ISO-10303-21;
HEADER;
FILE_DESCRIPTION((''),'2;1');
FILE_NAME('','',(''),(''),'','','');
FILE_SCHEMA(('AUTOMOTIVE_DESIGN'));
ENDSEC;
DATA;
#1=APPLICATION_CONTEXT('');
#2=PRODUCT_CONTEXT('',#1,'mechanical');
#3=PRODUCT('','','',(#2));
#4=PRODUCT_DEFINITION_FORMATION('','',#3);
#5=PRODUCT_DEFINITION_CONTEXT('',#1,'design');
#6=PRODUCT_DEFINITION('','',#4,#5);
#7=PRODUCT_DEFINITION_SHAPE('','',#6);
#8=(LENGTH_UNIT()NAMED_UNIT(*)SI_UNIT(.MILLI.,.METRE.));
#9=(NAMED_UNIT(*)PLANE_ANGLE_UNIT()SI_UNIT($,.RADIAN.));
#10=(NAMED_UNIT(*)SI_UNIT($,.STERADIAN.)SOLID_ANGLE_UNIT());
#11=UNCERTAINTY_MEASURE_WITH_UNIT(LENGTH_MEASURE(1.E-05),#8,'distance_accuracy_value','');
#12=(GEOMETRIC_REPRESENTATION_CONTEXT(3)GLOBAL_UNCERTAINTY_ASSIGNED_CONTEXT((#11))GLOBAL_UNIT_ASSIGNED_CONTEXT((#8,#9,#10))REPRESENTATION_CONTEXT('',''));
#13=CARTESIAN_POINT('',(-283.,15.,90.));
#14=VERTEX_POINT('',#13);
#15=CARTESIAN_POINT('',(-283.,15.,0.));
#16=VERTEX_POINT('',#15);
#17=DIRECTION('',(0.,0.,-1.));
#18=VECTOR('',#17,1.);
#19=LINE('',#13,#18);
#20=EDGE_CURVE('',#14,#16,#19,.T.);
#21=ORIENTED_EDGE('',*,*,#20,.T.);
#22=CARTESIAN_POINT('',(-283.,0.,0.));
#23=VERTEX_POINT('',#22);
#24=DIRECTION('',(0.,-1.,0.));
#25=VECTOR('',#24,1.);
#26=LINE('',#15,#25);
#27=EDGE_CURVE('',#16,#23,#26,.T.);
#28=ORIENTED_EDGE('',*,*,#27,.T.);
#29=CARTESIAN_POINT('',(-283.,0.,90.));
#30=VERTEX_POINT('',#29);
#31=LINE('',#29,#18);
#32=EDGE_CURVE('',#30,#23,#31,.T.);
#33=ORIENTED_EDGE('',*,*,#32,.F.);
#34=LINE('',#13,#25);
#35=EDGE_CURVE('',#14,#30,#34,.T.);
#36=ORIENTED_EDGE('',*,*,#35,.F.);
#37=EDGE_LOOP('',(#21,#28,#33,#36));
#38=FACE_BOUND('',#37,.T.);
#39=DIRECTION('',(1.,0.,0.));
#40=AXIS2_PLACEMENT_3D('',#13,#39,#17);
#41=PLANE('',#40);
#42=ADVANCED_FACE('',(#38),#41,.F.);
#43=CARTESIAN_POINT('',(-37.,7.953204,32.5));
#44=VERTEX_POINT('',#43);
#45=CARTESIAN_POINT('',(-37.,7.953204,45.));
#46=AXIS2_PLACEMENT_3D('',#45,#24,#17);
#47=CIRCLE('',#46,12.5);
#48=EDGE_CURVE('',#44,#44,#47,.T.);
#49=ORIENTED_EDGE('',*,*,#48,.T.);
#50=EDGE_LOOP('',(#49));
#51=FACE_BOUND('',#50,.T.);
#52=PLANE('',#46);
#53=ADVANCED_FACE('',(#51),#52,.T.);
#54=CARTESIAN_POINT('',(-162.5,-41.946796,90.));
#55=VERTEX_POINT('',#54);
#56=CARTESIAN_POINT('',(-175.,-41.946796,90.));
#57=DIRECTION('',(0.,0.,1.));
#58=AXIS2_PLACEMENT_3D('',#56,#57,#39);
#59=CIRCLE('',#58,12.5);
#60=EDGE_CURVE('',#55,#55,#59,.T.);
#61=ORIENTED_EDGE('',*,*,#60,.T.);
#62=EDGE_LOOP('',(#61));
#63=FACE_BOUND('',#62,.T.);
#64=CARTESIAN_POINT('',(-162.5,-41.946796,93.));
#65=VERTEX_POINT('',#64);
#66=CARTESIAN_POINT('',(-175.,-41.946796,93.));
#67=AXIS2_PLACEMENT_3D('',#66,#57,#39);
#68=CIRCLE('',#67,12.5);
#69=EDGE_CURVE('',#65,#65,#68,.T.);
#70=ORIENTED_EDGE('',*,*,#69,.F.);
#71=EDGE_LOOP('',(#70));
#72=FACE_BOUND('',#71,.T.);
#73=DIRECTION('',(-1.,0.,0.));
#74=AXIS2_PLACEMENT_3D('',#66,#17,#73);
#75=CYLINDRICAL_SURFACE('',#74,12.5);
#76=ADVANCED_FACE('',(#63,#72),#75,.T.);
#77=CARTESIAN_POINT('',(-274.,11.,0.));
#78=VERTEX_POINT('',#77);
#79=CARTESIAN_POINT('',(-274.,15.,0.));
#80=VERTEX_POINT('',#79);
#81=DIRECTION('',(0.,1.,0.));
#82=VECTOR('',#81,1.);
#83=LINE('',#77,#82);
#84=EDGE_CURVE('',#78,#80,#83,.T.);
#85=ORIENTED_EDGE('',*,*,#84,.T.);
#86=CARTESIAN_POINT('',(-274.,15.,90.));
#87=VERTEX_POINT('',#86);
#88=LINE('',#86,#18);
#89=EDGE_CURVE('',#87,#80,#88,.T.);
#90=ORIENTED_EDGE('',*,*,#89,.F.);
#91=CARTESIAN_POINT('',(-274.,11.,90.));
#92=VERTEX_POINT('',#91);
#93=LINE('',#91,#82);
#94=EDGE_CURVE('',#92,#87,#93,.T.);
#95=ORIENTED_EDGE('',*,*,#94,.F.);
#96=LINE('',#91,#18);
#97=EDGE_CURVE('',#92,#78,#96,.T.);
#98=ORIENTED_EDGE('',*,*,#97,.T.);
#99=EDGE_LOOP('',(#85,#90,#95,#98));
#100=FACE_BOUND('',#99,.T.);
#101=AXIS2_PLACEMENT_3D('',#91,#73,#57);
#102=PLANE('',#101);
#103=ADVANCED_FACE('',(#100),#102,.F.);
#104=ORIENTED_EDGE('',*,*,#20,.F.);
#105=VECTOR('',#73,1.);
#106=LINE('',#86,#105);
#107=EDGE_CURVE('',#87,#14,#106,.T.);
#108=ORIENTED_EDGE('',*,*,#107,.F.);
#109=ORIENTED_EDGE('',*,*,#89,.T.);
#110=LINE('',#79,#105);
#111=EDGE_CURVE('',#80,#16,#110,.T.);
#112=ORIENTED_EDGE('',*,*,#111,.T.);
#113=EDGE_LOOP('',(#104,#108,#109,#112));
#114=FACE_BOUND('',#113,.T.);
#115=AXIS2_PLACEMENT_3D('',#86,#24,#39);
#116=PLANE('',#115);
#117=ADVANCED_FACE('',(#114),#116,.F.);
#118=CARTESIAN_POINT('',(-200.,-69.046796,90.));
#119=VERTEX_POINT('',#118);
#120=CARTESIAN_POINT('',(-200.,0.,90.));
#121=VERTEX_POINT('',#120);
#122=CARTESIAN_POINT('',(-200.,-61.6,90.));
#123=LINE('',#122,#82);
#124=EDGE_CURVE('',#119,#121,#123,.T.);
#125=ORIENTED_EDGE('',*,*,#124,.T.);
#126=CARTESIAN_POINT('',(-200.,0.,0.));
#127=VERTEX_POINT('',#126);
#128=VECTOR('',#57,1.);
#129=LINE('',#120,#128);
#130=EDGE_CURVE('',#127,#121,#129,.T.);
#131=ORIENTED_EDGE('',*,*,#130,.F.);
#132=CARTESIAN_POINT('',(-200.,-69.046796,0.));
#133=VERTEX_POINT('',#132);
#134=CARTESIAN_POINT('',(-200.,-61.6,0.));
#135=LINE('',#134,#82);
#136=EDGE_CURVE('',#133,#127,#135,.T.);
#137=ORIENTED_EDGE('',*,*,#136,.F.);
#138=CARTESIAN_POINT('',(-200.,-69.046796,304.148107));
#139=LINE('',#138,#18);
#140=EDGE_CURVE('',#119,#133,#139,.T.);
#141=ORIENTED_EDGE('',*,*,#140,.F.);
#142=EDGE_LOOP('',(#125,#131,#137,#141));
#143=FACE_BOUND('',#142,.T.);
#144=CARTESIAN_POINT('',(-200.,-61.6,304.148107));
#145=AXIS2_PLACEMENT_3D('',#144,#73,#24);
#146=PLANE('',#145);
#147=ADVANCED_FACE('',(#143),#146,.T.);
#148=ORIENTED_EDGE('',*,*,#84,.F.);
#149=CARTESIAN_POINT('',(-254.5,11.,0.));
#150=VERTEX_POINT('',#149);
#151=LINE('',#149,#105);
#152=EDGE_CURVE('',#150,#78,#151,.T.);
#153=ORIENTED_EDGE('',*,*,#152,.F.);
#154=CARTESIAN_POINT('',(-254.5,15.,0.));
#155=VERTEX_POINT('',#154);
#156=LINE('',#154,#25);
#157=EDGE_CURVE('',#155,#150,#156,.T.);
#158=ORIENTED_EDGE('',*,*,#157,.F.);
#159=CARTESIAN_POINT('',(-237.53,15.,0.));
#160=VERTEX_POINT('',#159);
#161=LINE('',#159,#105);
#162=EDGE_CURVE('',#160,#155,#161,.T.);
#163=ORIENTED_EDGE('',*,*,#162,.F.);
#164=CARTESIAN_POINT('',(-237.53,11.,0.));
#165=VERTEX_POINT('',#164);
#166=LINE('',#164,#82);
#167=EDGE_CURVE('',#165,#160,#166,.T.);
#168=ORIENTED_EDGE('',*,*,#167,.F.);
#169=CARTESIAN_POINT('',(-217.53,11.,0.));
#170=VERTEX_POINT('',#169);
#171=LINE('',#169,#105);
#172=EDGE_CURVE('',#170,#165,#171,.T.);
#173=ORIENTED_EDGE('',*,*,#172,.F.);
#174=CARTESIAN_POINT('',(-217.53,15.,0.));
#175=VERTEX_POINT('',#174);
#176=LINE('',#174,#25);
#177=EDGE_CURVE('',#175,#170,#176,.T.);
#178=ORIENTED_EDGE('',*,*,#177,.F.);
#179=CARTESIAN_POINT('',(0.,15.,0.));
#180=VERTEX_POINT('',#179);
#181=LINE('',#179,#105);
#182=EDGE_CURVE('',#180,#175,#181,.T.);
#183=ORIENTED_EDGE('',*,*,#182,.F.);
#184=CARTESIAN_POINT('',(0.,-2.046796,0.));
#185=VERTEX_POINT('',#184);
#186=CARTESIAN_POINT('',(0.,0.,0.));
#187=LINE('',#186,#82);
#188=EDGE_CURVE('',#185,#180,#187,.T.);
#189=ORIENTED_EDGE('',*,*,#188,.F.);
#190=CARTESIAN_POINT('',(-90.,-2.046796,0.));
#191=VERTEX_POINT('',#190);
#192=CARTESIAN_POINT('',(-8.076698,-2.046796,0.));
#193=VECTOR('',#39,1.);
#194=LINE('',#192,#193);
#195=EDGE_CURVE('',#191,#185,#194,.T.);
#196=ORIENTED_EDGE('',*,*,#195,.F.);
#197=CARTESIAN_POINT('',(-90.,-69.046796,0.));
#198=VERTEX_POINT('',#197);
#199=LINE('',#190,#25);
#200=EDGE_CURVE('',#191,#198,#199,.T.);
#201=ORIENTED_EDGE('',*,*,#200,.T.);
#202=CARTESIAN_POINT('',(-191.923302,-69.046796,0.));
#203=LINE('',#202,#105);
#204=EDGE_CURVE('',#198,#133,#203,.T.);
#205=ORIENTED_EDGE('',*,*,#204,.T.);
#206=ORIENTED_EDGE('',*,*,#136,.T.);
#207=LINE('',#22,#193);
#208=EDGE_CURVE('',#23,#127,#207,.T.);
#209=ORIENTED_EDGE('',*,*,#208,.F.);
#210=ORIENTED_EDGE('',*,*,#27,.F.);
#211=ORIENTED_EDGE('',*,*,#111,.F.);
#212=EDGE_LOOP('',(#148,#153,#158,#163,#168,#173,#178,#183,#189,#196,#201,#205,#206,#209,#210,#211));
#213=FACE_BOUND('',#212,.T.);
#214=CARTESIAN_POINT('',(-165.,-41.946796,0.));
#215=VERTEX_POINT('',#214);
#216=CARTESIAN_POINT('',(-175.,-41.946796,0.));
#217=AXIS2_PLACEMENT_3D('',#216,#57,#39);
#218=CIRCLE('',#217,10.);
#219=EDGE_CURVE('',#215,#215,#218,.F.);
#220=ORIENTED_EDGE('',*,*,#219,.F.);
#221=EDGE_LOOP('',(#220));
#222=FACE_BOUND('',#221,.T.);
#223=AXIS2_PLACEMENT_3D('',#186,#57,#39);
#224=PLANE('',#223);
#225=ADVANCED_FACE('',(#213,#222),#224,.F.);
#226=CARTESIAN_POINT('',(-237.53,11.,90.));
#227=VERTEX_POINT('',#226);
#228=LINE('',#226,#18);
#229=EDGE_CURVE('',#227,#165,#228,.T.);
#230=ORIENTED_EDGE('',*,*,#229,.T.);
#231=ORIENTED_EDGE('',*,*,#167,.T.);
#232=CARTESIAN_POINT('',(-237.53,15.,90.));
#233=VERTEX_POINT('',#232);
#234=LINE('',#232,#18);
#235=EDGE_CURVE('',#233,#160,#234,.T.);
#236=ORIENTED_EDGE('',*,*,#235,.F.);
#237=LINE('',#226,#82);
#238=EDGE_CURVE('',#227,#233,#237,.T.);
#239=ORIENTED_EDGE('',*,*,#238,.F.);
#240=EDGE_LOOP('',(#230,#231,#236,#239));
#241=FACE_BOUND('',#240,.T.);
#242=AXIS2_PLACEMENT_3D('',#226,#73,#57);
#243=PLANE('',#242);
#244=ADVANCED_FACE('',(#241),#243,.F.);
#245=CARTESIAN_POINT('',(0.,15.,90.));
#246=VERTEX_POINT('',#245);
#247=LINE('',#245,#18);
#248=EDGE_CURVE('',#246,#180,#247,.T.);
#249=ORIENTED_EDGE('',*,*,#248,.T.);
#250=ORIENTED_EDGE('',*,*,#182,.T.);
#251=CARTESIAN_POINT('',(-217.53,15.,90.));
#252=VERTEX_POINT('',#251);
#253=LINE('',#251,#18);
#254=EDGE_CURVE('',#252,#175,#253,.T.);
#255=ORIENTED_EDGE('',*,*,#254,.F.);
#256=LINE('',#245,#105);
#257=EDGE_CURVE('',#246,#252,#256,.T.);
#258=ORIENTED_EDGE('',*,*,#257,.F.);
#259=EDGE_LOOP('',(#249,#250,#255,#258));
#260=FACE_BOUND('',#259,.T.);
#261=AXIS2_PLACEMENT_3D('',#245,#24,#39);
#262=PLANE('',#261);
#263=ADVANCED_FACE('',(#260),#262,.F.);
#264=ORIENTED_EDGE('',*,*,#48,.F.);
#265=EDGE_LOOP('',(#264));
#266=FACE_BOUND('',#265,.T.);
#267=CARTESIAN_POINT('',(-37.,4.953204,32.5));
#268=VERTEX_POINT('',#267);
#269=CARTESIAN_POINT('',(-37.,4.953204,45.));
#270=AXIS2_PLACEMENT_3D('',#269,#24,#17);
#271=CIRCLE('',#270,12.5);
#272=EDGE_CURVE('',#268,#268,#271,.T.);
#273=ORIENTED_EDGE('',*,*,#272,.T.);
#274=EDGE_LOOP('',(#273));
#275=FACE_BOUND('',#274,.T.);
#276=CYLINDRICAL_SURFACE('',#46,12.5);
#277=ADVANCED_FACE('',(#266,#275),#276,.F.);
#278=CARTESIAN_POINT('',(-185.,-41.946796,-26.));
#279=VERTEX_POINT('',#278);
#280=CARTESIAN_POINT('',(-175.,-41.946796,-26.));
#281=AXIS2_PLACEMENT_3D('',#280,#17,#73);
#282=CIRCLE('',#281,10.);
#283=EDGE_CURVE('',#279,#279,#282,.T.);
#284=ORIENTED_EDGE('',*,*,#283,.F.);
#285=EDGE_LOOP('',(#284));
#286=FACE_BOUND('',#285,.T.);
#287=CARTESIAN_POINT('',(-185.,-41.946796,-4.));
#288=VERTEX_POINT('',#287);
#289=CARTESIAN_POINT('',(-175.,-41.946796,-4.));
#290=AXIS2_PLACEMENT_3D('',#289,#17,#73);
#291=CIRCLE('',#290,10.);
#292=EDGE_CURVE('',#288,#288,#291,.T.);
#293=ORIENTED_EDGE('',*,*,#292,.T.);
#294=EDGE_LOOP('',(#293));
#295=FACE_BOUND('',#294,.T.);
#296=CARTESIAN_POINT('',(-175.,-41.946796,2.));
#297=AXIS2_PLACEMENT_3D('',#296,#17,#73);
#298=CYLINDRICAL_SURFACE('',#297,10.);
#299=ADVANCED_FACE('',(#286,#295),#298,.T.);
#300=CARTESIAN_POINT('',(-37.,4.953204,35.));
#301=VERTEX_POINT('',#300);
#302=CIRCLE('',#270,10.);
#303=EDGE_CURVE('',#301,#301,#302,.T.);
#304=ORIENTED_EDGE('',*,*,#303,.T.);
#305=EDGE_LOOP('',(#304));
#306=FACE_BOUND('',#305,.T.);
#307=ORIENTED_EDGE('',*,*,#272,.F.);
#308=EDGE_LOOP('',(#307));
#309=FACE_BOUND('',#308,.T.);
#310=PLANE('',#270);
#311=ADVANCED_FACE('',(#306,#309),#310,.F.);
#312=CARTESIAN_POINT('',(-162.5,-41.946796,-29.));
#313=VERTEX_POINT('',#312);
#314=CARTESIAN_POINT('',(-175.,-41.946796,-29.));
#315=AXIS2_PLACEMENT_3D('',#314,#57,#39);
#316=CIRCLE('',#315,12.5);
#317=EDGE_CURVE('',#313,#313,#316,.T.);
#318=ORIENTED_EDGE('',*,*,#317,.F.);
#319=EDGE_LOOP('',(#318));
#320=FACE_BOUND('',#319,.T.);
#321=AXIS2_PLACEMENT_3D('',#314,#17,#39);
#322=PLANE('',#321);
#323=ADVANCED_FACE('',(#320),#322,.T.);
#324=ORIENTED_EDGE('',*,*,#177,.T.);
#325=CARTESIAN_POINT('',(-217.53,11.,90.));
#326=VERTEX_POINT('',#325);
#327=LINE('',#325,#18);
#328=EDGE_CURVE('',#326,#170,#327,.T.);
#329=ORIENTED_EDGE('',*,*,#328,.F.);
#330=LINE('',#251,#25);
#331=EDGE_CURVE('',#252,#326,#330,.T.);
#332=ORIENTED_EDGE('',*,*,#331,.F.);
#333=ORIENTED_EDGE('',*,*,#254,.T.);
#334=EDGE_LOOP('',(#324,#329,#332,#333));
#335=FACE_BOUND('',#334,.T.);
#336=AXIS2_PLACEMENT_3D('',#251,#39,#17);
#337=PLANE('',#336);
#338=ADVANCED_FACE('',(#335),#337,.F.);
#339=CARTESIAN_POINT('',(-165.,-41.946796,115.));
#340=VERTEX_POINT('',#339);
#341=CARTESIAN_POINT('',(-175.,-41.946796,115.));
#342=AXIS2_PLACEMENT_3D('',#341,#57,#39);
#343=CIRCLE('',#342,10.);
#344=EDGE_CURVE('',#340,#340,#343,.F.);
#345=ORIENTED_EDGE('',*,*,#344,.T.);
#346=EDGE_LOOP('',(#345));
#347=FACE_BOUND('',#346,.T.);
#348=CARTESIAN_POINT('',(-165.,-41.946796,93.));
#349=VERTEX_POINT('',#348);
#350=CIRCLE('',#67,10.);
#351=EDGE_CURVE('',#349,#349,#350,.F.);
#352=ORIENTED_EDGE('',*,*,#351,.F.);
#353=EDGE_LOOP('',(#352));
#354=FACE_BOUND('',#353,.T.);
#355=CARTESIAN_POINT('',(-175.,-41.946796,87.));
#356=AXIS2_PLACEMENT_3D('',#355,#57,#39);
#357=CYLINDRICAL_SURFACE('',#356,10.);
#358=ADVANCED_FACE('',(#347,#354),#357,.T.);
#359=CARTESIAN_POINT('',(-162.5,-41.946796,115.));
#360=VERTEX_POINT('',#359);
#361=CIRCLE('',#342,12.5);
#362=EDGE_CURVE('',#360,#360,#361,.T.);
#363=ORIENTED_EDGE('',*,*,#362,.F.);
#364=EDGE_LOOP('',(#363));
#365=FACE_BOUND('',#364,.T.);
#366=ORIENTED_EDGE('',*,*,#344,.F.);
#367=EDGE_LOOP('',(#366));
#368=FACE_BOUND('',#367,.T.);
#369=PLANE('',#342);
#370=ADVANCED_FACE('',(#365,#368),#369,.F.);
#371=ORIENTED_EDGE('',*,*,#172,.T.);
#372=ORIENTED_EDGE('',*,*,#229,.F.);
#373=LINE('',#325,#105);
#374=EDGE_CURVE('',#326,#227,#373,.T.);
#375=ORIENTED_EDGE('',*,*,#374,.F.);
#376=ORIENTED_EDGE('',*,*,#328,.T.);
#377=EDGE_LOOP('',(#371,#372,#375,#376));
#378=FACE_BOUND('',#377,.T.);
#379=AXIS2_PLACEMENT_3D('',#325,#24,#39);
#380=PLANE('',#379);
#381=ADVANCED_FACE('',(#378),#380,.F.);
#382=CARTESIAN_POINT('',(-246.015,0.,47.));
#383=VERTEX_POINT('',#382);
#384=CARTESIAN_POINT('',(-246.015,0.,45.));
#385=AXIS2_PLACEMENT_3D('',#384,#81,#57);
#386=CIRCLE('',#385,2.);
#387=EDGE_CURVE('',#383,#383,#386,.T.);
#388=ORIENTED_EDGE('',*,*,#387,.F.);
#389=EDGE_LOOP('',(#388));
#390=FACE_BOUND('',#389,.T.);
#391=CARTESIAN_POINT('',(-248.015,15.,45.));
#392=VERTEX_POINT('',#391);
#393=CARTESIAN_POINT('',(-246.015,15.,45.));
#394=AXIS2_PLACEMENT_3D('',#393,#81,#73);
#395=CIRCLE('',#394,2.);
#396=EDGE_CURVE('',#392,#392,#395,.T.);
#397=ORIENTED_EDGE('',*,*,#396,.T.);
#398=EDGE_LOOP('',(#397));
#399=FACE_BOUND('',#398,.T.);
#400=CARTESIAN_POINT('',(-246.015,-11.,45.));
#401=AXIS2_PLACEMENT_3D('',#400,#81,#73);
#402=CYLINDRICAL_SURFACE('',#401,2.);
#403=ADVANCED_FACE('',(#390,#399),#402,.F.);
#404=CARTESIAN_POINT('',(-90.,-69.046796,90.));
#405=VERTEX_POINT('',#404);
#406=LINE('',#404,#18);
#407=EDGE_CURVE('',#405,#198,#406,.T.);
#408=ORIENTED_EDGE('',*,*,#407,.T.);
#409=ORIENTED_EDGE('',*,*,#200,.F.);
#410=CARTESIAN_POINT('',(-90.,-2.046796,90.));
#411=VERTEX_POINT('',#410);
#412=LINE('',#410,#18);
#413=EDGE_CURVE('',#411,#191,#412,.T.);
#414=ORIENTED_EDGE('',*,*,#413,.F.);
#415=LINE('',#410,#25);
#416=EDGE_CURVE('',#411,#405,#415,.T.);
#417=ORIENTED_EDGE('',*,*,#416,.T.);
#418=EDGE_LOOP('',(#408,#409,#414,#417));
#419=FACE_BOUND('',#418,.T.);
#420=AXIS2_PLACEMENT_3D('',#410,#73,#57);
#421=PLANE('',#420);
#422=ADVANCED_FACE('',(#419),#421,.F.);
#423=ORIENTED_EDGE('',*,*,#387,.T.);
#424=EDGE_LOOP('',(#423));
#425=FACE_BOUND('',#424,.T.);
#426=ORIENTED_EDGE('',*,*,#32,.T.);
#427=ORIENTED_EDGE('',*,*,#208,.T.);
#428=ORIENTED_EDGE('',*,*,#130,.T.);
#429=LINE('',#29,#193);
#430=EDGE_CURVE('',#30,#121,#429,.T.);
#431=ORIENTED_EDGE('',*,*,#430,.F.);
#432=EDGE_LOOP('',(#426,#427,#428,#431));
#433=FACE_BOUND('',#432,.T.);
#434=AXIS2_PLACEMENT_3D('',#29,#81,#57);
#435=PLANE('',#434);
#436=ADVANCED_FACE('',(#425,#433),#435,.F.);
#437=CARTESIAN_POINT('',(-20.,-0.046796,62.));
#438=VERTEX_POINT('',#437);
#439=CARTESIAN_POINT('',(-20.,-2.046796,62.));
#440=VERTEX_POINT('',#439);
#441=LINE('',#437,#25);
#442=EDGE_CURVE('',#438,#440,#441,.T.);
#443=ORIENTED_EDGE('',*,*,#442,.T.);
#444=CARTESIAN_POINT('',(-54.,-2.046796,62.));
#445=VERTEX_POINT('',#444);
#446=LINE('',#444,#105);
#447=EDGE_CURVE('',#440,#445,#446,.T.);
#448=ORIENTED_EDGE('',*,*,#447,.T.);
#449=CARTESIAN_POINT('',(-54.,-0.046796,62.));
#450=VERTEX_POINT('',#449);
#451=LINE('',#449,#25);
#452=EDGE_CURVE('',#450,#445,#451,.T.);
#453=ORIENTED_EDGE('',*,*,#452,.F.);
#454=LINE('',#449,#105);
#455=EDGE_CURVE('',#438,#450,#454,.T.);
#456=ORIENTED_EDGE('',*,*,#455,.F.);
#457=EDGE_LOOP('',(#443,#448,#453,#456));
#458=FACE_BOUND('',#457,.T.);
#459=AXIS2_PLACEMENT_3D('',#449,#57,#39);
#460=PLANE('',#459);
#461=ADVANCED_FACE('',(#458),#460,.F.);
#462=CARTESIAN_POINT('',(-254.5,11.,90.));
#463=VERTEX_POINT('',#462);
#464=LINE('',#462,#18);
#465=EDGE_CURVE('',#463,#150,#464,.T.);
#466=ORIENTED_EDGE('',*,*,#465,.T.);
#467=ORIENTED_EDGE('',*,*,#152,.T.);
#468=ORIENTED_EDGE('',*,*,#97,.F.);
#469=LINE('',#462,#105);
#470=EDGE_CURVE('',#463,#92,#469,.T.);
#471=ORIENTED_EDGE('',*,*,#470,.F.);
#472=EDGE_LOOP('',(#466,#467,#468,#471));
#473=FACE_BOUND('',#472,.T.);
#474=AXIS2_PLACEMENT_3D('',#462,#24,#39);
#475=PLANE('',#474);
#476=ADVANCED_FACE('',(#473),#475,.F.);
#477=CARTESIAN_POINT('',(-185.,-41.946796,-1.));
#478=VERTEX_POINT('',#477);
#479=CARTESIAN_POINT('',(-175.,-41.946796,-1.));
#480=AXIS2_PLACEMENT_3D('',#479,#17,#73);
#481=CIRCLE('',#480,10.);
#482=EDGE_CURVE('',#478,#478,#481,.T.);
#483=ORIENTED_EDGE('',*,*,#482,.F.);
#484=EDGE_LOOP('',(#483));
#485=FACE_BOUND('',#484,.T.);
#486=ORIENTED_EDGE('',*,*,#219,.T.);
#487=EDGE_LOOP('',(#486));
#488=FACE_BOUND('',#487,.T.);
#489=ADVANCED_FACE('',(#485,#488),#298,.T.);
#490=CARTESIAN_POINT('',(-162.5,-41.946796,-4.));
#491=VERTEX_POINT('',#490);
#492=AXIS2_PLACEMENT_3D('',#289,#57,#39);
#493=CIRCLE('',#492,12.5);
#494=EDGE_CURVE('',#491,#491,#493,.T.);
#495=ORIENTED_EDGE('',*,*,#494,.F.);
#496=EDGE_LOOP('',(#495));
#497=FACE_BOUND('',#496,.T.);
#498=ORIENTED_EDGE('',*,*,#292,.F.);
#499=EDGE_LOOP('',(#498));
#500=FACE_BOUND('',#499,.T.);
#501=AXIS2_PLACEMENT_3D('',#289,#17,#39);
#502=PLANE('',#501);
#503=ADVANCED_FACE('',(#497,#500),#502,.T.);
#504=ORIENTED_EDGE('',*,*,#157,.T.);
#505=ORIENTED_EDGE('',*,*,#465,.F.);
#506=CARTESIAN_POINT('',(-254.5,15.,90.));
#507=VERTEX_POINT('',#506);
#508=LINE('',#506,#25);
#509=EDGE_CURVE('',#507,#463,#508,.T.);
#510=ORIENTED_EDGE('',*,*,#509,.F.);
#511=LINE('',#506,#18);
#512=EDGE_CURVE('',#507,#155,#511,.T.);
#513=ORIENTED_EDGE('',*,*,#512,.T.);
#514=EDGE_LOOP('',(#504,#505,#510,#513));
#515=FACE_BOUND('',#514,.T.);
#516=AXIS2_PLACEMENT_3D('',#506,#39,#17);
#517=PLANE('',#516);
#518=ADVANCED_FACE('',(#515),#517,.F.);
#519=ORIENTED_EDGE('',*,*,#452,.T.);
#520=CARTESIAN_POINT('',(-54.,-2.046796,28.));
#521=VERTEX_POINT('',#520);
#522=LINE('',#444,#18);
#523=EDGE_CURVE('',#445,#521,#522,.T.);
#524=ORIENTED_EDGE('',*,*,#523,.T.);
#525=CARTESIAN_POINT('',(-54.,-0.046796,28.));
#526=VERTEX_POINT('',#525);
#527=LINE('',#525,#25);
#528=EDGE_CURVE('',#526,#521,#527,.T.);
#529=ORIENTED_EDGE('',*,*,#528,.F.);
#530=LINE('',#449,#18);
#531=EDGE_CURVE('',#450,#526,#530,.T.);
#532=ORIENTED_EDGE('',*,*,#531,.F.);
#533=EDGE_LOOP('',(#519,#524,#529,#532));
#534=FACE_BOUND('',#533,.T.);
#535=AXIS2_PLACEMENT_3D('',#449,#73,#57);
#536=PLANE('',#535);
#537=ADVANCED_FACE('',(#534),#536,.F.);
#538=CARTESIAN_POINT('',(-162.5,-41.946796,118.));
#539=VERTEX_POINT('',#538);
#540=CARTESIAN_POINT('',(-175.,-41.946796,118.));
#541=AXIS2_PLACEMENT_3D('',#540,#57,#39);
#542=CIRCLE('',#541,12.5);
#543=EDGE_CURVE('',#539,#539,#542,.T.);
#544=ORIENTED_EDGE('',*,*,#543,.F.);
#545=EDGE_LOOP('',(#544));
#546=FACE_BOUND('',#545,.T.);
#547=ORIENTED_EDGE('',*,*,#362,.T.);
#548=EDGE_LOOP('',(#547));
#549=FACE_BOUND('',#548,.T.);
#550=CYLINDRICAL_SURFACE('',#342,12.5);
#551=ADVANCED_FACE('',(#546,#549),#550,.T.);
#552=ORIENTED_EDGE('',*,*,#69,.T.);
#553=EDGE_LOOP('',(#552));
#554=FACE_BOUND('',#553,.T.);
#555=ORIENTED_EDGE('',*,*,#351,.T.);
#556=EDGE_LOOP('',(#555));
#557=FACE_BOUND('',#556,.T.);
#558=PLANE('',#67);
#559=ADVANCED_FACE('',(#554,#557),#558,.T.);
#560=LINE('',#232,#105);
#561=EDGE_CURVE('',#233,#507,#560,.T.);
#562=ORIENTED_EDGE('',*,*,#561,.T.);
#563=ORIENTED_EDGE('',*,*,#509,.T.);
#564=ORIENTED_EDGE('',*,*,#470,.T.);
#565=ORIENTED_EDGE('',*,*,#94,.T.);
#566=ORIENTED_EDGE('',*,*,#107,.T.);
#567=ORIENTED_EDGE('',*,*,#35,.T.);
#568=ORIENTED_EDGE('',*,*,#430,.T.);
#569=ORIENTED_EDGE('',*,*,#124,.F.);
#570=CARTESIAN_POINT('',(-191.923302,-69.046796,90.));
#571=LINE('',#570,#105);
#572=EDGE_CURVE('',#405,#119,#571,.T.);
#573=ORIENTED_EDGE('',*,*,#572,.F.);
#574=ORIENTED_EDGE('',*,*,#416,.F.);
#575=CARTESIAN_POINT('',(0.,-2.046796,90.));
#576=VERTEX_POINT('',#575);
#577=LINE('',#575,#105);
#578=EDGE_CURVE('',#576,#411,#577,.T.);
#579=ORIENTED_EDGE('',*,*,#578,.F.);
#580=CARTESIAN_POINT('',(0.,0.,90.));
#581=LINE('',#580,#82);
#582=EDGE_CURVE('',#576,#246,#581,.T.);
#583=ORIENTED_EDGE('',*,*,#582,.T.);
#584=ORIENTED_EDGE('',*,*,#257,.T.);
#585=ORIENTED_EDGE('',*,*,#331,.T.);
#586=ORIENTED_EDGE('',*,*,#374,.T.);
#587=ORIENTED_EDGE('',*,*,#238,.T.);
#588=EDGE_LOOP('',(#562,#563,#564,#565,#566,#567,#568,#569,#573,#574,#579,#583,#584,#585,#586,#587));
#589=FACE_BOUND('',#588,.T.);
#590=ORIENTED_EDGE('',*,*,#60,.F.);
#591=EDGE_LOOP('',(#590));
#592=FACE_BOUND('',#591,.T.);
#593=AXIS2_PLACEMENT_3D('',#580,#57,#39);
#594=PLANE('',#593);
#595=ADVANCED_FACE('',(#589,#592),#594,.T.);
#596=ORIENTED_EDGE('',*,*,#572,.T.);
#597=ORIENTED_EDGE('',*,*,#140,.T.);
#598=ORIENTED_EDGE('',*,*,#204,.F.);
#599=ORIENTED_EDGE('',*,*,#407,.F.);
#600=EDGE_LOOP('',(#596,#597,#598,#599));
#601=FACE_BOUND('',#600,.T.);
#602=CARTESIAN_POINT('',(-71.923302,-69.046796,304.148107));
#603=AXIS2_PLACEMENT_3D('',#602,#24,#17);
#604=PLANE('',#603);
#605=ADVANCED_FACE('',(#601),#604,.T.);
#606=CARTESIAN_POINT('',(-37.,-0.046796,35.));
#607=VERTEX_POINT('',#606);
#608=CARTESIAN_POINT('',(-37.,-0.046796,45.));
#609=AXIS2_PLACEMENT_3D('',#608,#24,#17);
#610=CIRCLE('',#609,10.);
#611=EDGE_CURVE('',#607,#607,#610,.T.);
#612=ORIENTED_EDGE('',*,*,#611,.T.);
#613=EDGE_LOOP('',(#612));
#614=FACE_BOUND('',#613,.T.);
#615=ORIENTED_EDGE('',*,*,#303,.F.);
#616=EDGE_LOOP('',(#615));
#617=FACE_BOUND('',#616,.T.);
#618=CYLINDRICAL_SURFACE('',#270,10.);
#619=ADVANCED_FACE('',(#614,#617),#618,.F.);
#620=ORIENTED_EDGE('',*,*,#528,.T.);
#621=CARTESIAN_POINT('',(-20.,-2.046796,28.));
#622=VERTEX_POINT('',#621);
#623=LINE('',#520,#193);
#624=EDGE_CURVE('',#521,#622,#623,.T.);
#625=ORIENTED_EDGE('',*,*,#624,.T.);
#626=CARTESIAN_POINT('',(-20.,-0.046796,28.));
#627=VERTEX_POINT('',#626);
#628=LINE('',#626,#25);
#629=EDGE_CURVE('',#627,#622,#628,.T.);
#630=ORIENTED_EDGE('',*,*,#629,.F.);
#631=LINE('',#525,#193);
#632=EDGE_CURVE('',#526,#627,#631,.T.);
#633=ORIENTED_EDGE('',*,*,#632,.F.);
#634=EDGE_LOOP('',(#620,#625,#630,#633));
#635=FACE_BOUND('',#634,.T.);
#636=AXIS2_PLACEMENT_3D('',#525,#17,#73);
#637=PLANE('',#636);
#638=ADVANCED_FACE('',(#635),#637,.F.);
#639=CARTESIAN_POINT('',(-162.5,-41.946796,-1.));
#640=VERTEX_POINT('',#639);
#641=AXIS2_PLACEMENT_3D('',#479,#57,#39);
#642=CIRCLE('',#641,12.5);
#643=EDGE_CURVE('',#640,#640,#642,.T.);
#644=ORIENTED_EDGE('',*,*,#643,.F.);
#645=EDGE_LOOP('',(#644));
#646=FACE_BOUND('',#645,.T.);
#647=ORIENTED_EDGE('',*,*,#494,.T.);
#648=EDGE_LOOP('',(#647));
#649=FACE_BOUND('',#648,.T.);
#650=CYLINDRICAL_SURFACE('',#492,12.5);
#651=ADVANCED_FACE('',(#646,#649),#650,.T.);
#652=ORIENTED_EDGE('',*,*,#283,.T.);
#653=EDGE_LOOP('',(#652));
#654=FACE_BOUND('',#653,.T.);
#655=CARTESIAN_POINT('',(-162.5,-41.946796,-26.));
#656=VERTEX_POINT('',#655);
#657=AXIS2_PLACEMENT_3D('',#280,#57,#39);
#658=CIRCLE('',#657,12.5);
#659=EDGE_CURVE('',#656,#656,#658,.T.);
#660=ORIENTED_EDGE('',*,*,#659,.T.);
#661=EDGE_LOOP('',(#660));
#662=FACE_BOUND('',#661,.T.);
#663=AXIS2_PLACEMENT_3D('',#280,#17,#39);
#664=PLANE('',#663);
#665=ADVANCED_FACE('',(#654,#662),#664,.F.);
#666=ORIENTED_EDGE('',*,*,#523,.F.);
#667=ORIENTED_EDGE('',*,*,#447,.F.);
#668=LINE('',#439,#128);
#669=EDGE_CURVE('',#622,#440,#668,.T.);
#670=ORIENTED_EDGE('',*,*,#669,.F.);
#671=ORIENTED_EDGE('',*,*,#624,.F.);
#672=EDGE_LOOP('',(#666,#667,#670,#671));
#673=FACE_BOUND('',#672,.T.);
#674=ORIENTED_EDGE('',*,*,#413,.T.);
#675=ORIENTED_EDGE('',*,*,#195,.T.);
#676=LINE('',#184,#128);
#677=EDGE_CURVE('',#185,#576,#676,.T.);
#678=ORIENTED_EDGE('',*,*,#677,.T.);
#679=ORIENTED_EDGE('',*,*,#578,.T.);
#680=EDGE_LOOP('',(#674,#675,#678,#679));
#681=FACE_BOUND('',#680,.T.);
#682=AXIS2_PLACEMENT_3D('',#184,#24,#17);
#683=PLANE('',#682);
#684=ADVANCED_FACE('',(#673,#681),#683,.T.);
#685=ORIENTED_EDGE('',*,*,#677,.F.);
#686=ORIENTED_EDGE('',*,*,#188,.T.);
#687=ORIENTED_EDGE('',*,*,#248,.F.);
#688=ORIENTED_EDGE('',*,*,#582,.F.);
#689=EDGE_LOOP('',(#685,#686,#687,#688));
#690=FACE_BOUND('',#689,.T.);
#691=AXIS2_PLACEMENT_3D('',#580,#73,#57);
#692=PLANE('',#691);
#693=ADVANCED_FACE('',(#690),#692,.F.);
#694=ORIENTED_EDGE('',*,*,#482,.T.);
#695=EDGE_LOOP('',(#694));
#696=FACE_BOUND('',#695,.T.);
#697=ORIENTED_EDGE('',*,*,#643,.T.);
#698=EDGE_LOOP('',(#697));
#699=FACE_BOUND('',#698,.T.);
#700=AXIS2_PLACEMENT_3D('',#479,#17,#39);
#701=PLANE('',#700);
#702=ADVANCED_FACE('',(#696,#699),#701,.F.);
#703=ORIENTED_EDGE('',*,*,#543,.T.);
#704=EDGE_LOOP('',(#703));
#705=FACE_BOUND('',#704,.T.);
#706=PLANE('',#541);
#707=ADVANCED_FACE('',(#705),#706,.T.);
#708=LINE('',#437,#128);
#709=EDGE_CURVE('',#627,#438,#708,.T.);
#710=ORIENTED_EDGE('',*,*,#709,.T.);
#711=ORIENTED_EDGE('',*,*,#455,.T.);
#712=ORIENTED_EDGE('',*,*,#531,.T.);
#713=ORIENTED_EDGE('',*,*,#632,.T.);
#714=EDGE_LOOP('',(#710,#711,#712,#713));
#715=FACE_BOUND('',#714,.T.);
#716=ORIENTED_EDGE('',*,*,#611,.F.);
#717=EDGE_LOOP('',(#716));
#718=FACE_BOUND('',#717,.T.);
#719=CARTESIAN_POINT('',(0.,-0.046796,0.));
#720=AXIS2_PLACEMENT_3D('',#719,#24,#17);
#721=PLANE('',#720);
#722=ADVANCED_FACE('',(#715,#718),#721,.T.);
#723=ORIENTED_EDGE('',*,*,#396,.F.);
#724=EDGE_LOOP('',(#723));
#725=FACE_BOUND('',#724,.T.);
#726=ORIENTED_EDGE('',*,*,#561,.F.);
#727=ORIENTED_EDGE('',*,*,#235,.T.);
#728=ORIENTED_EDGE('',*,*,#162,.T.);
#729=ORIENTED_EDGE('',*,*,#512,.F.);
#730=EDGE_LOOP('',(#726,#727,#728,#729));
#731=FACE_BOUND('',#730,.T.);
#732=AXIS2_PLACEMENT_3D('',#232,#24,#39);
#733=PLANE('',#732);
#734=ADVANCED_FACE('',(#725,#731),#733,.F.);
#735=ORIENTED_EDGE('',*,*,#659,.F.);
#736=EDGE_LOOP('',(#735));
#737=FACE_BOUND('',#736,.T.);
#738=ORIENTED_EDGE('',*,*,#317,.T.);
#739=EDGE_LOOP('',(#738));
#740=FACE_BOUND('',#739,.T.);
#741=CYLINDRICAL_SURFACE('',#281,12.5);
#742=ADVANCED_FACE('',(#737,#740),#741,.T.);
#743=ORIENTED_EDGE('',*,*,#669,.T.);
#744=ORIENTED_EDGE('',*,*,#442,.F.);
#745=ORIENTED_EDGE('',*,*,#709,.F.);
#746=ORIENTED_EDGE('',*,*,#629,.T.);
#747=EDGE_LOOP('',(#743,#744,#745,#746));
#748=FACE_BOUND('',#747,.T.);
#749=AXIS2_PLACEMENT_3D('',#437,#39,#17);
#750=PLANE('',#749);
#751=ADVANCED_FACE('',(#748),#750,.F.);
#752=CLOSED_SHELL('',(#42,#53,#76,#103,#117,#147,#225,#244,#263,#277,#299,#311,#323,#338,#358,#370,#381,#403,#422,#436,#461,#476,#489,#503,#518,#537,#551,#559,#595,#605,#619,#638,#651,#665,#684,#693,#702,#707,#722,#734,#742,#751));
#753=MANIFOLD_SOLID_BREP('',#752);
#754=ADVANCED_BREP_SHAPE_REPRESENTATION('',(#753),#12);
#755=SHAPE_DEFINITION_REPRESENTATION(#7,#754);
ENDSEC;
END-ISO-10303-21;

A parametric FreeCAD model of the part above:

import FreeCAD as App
import Part
import Sketcher
Q = App.Units.Quantity

doc = App.newDocument("Part")
body = doc.addObject("PartDesign::Body", "Body")

# Sketch on XY plane
sketch1 = body.newObject("Sketcher::SketchObject", "Sketch")
sketch1.AttachmentSupport = (doc.getObject("XY_Plane"), [""])
sketch1.MapMode = "FlatFace"
sketch1.addGeometry(Part.LineSegment(App.Vector(-283, 0, 0), App.Vector(0, 0, 0)), False)
sketch1.addGeometry(Part.LineSegment(App.Vector(0, 0, 0), App.Vector(0, 15, 0)), False)
sketch1.addGeometry(Part.LineSegment(App.Vector(0, 15, 0), App.Vector(-217.53, 15, 0)), False)
sketch1.addGeometry(Part.LineSegment(App.Vector(-217.53, 15, 0), App.Vector(-217.53, 11, 0)), False)
sketch1.addGeometry(Part.LineSegment(App.Vector(-217.53, 11, 0), App.Vector(-237.53, 11, 0)), False)
sketch1.addGeometry(Part.LineSegment(App.Vector(-237.53, 11, 0), App.Vector(-237.53, 15, 0)), False)
sketch1.addGeometry(Part.LineSegment(App.Vector(-237.53, 15, 0), App.Vector(-254.5, 15, 0)), False)
sketch1.addGeometry(Part.LineSegment(App.Vector(-254.5, 15, 0), App.Vector(-254.5, 11, 0)), False)
sketch1.addGeometry(Part.LineSegment(App.Vector(-254.5, 11, 0), App.Vector(-274, 11, 0)), False)
sketch1.addGeometry(Part.LineSegment(App.Vector(-274, 11, 0), App.Vector(-274, 15, 0)), False)
sketch1.addGeometry(Part.LineSegment(App.Vector(-274, 15, 0), App.Vector(-283, 15, 0)), False)
sketch1.addGeometry(Part.LineSegment(App.Vector(-283, 15, 0), App.Vector(-283, 0, 0)), False)
sketch1.addConstraint(Sketcher.Constraint("Coincident", 0, 2, 1, 1))
sketch1.addConstraint(Sketcher.Constraint("Coincident", 1, 2, 2, 1))
sketch1.addConstraint(Sketcher.Constraint("Coincident", 2, 2, 3, 1))
sketch1.addConstraint(Sketcher.Constraint("Coincident", 3, 2, 4, 1))
sketch1.addConstraint(Sketcher.Constraint("Coincident", 4, 2, 5, 1))
sketch1.addConstraint(Sketcher.Constraint("Coincident", 5, 2, 6, 1))
sketch1.addConstraint(Sketcher.Constraint("Coincident", 6, 2, 7, 1))
sketch1.addConstraint(Sketcher.Constraint("Coincident", 7, 2, 8, 1))
sketch1.addConstraint(Sketcher.Constraint("Coincident", 8, 2, 9, 1))
sketch1.addConstraint(Sketcher.Constraint("Coincident", 9, 2, 10, 1))
sketch1.addConstraint(Sketcher.Constraint("Coincident", 10, 2, 11, 1))
sketch1.addConstraint(Sketcher.Constraint("Coincident", 11, 2, 0, 1))
sketch1.addConstraint(Sketcher.Constraint("Horizontal", 0))
sketch1.addConstraint(Sketcher.Constraint("Vertical", 1))
sketch1.addConstraint(Sketcher.Constraint("Horizontal", 2))
sketch1.addConstraint(Sketcher.Constraint("Vertical", 3))
sketch1.addConstraint(Sketcher.Constraint("Horizontal", 4))
sketch1.addConstraint(Sketcher.Constraint("Vertical", 5))
sketch1.addConstraint(Sketcher.Constraint("Horizontal", 6))
sketch1.addConstraint(Sketcher.Constraint("Vertical", 7))
sketch1.addConstraint(Sketcher.Constraint("Horizontal", 8))
sketch1.addConstraint(Sketcher.Constraint("Vertical", 9))
sketch1.addConstraint(Sketcher.Constraint("Horizontal", 10))
sketch1.addConstraint(Sketcher.Constraint("Vertical", 11))
sketch1.addConstraint(Sketcher.Constraint("Coincident", 0, 2, -1, 1))
sketch1.addConstraint(Sketcher.Constraint("Horizontal", 2, 2, 5, 2))
sketch1.addConstraint(Sketcher.Constraint("Horizontal", 4, 2, 7, 2))
sketch1.addConstraint(Sketcher.Constraint("Horizontal", 6, 2, 9, 2))
sketch1.addConstraint(Sketcher.Constraint("DistanceX", 0, 1, 0, 2, 283.0))
sketch1.addConstraint(Sketcher.Constraint("DistanceX", 4, 2, 4, 1, 20.0))
sketch1.addConstraint(Sketcher.Constraint("DistanceX", 10, 2, 10, 1, 9.0))
sketch1.addConstraint(Sketcher.Constraint("DistanceY", 1, 1, 1, 2, 15.0))
sketch1.addConstraint(Sketcher.Constraint("DistanceY", 3, 2, 3, 1, 4.0))
sketch1.addConstraint(Sketcher.Constraint("DistanceX", 8, 2, 8, 1, 19.5))
sketch1.addConstraint(Sketcher.Constraint("DistanceX", 2, 2, 2, 1, 217.53))
pad1 = body.newObject("PartDesign::Pad", "Pad")
pad1.Profile = sketch1
pad1.Length = 90

# Sketch on XZ plane
sketch2 = body.newObject("Sketcher::SketchObject", "Sketch001")
sketch2.AttachmentSupport = (doc.getObject("XZ_Plane"), [""])
sketch2.MapMode = "FlatFace"
sketch2.AttachmentOffset = App.Placement(App.Vector(0, 0, -15), App.Rotation())
sketch2.addGeometry(Part.Circle(App.Vector(-246.015, 45, 0), App.Vector(0, 0, 1), 2), False)
sketch2.addConstraint(Sketcher.Constraint("Diameter", 0, 4.0))
sketch2.addConstraint(Sketcher.Constraint("DistanceY", -1, 1, 0, 3, 45.0))
sketch2.addConstraint(Sketcher.Constraint("DistanceX", 0, 3, -1, 1, 246.015))
pocket1 = body.newObject("PartDesign::Pocket", "Pocket")
pocket1.Profile = sketch2
pocket1.Length = 26
pocket1.Reversed = True

# Sketch on XY plane
sketch3 = body.newObject("Sketcher::SketchObject", "Sketch002")
sketch3.AttachmentSupport = (doc.getObject("XY_Plane"), [""])
sketch3.MapMode = "FlatFace"
sketch3.addGeometry(Part.LineSegment(App.Vector(0, -69.046796, 0), App.Vector(-8.076698, -69.046796, 0)), False)
sketch3.addGeometry(Part.LineSegment(App.Vector(-8.076698, -69.046796, 0), App.Vector(-16.610634, -45.6, 0)), False)
sketch3.addGeometry(Part.LineSegment(App.Vector(-16.610634, -45.6, 0), App.Vector(-63.389366, -45.6, 0)), False)
sketch3.addGeometry(Part.LineSegment(App.Vector(-63.389366, -45.6, 0), App.Vector(-71.923302, -69.046796, 0)), False)
sketch3.addGeometry(Part.LineSegment(App.Vector(-71.923302, -69.046796, 0), App.Vector(-128.076698, -69.046796, 0)), False)
sketch3.addGeometry(Part.LineSegment(App.Vector(-128.076698, -69.046796, 0), App.Vector(-136.610634, -45.6, 0)), False)
sketch3.addGeometry(Part.LineSegment(App.Vector(-136.610634, -45.6, 0), App.Vector(-183.389366, -45.6, 0)), False)
sketch3.addGeometry(Part.LineSegment(App.Vector(-183.389366, -45.6, 0), App.Vector(-191.923302, -69.046796, 0)), False)
sketch3.addGeometry(Part.LineSegment(App.Vector(-191.923302, -69.046796, 0), App.Vector(-200, -69.046796, 0)), False)
sketch3.addGeometry(Part.LineSegment(App.Vector(-200, -69.046796, 0), App.Vector(-200, 7.5, 0)), False)
sketch3.addGeometry(Part.LineSegment(App.Vector(-200, 7.5, 0), App.Vector(0, 7.5, 0)), False)
sketch3.addGeometry(Part.LineSegment(App.Vector(0, 7.5, 0), App.Vector(0, -69.046796, 0)), False)
sketch3.addConstraint(Sketcher.Constraint("Coincident", 0, 2, 1, 1))
sketch3.addConstraint(Sketcher.Constraint("Coincident", 1, 2, 2, 1))
sketch3.addConstraint(Sketcher.Constraint("Coincident", 2, 2, 3, 1))
sketch3.addConstraint(Sketcher.Constraint("Coincident", 3, 2, 4, 1))
sketch3.addConstraint(Sketcher.Constraint("Coincident", 4, 2, 5, 1))
sketch3.addConstraint(Sketcher.Constraint("Coincident", 5, 2, 6, 1))
sketch3.addConstraint(Sketcher.Constraint("Coincident", 6, 2, 7, 1))
sketch3.addConstraint(Sketcher.Constraint("Coincident", 7, 2, 8, 1))
sketch3.addConstraint(Sketcher.Constraint("Coincident", 8, 2, 9, 1))
sketch3.addConstraint(Sketcher.Constraint("Coincident", 9, 2, 10, 1))
sketch3.addConstraint(Sketcher.Constraint("Coincident", 10, 2, 11, 1))
sketch3.addConstraint(Sketcher.Constraint("Coincident", 11, 2, 0, 1))
sketch3.addConstraint(Sketcher.Constraint("Horizontal", 0))
sketch3.addConstraint(Sketcher.Constraint("Horizontal", 2))
sketch3.addConstraint(Sketcher.Constraint("Horizontal", 4))
sketch3.addConstraint(Sketcher.Constraint("Horizontal", 6))
sketch3.addConstraint(Sketcher.Constraint("Horizontal", 8))
sketch3.addConstraint(Sketcher.Constraint("Vertical", 9))
sketch3.addConstraint(Sketcher.Constraint("Horizontal", 10))
sketch3.addConstraint(Sketcher.Constraint("Vertical", 11))
sketch3.addConstraint(Sketcher.Constraint("PointOnObject", 10, 2, -2))
sketch3.addConstraint(Sketcher.Constraint("Parallel", 1, 5))
sketch3.addConstraint(Sketcher.Constraint("Parallel", 3, 7))
sketch3.addConstraint(Sketcher.Constraint("Horizontal", 0, 2, 3, 2))
sketch3.addConstraint(Sketcher.Constraint("Horizontal", 2, 2, 5, 2))
sketch3.addConstraint(Sketcher.Constraint("Horizontal", 4, 2, 7, 2))
sketch3.addConstraint(Sketcher.Constraint("Equal", 2, 6))
sketch3.addConstraint(Sketcher.Constraint("Equal", 0, 8))
sketch3.addConstraint(Sketcher.Constraint("Equal", 1, 3))
sketch3.addConstraint(Sketcher.Constraint("DistanceX", 10, 1, 10, 2, 200.0))
sketch3.addConstraint(Sketcher.Constraint("Angle", 1, Q("110 deg")))
sketch3.addConstraint(Sketcher.Constraint("DistanceX", 4, 2, 0, 2, 120.0))
sketch3.addConstraint(Sketcher.Constraint("DistanceY", 1, 2, -1, 1, 45.6))
sketch3.addConstraint(Sketcher.Constraint("DistanceY", -1, 1, 9, 2, 7.5))
sketch3.addConstraint(Sketcher.Constraint("Distance", 1, 24.951559))
sketch3.addConstraint(Sketcher.Constraint("DistanceX", 0, 2, 0, 1, 8.076698))
pad2 = body.newObject("PartDesign::Pad", "Pad001")
pad2.Profile = sketch3
pad2.Length = 90

# Sketch on XY plane
sketch4 = body.newObject("Sketcher::SketchObject", "Sketch003")
sketch4.AttachmentSupport = (doc.getObject("XY_Plane"), [""])
sketch4.MapMode = "FlatFace"
sketch4.AttachmentOffset = App.Placement(App.Vector(0, 0, 44.5), App.Rotation())
sketch4.addGeometry(Part.LineSegment(App.Vector(-16.236548, -38.347169, 0), App.Vector(-16.236548, -65.046796, 0)), False)
sketch4.addGeometry(Part.LineSegment(App.Vector(-16.236548, -65.046796, 0), App.Vector(-64.158955, -65.046796, 0)), False)
sketch4.addGeometry(Part.LineSegment(App.Vector(-64.158955, -65.046796, 0), App.Vector(-64.158955, -38.347169, 0)), False)
sketch4.addGeometry(Part.LineSegment(App.Vector(-64.158955, -38.347169, 0), App.Vector(-16.236548, -38.347169, 0)), False)
sketch4.addConstraint(Sketcher.Constraint("Coincident", 0, 2, 1, 1))
sketch4.addConstraint(Sketcher.Constraint("Coincident", 1, 2, 2, 1))
sketch4.addConstraint(Sketcher.Constraint("Coincident", 2, 2, 3, 1))
sketch4.addConstraint(Sketcher.Constraint("Coincident", 3, 2, 0, 1))
sketch4.addConstraint(Sketcher.Constraint("Vertical", 0))
sketch4.addConstraint(Sketcher.Constraint("Horizontal", 1))
sketch4.addConstraint(Sketcher.Constraint("Vertical", 2))
sketch4.addConstraint(Sketcher.Constraint("Horizontal", 3))
sketch4.addConstraint(Sketcher.Constraint("DistanceX", 1, 2, 1, 1, 47.922408))
sketch4.addConstraint(Sketcher.Constraint("DistanceY", 0, 2, 0, 1, 26.699627))
sketch4.addConstraint(Sketcher.Constraint("DistanceY", 2, 2, -1, 1, 38.347169))
sketch4.addConstraint(Sketcher.Constraint("DistanceX", 0, 2, -1, 1, 16.236548))
pad3 = body.newObject("PartDesign::Pad", "Pad002")
pad3.Profile = sketch4
pad3.Length = 40
pad3.Midplane = True

# Sketch on XY plane
sketch5 = body.newObject("Sketcher::SketchObject", "Sketch004")
sketch5.AttachmentSupport = (doc.getObject("XY_Plane"), [""])
sketch5.MapMode = "FlatFace"
sketch5.AttachmentOffset = App.Placement(App.Vector(0, 0, 24.5), App.Rotation())
sketch5.addGeometry(Part.Circle(App.Vector(-40, -61.6, 0), App.Vector(0, 0, 1), 2.5), False)
sketch5.addConstraint(Sketcher.Constraint("Diameter", 0, 5.0))
sketch5.addConstraint(Sketcher.Constraint("DistanceX", 0, 3, -1, 1, 40.0))
sketch5.addConstraint(Sketcher.Constraint("DistanceY", 0, 3, -1, 1, 61.6))
pocket2 = body.newObject("PartDesign::Pocket", "Pocket001")
pocket2.Profile = sketch5
pocket2.Type = "ThroughAll"
pocket2.Reversed = True

# Sketch on XY plane
sketch6 = body.newObject("Sketcher::SketchObject", "Sketch005")
sketch6.AttachmentSupport = (doc.getObject("XY_Plane"), [""])
sketch6.MapMode = "FlatFace"
sketch6.addGeometry(Part.LineSegment(App.Vector(-152.5, -32.6, 0), App.Vector(-152.5, -40.6, 0)), False)
sketch6.addGeometry(Part.LineSegment(App.Vector(-152.5, -40.6, 0), App.Vector(-167.5, -40.6, 0)), False)
sketch6.addGeometry(Part.LineSegment(App.Vector(-167.5, -40.6, 0), App.Vector(-167.5, -32.6, 0)), False)
sketch6.addGeometry(Part.LineSegment(App.Vector(-167.5, -32.6, 0), App.Vector(-152.5, -32.6, 0)), False)
sketch6.addConstraint(Sketcher.Constraint("Coincident", 0, 2, 1, 1))
sketch6.addConstraint(Sketcher.Constraint("Coincident", 1, 2, 2, 1))
sketch6.addConstraint(Sketcher.Constraint("Coincident", 2, 2, 3, 1))
sketch6.addConstraint(Sketcher.Constraint("Coincident", 3, 2, 0, 1))
sketch6.addConstraint(Sketcher.Constraint("Vertical", 0))
sketch6.addConstraint(Sketcher.Constraint("Horizontal", 1))
sketch6.addConstraint(Sketcher.Constraint("Vertical", 2))
sketch6.addConstraint(Sketcher.Constraint("Horizontal", 3))
sketch6.addConstraint(Sketcher.Constraint("DistanceX", 1, 2, 1, 1, 15.0))
sketch6.addConstraint(Sketcher.Constraint("DistanceY", 0, 2, 0, 1, 8.0))
sketch6.addConstraint(Sketcher.Constraint("DistanceX", 0, 2, -1, 1, 152.5))
sketch6.addConstraint(Sketcher.Constraint("DistanceY", 0, 2, -1, 1, 40.6))
pocket3 = body.newObject("PartDesign::Pocket", "Pocket002")
pocket3.Profile = sketch6
pocket3.Type = "ThroughAll"
pocket3.Reversed = True

# Sketch on XZ plane
sketch7 = body.newObject("Sketcher::SketchObject", "Sketch006")
sketch7.AttachmentSupport = (doc.getObject("XZ_Plane"), [""])
sketch7.MapMode = "FlatFace"
sketch7.AttachmentOffset = App.Placement(App.Vector(0, 0, 45.6), App.Rotation())
sketch7.addGeometry(Part.Circle(App.Vector(-160, 75, 0), App.Vector(0, 0, 1), 2.5), False)
sketch7.addConstraint(Sketcher.Constraint("Diameter", 0, 5.0))
sketch7.addConstraint(Sketcher.Constraint("DistanceX", 0, 3, -1, 1, 160.0))
sketch7.addConstraint(Sketcher.Constraint("DistanceY", -1, 1, 0, 3, 75.0))
pocket4 = body.newObject("PartDesign::Pocket", "Pocket003")
pocket4.Profile = sketch7
pocket4.Type = "UpToFirst"

# Sketch on XZ plane
sketch8 = body.newObject("Sketcher::SketchObject", "Sketch007")
sketch8.AttachmentSupport = (doc.getObject("XZ_Plane"), [""])
sketch8.MapMode = "FlatFace"
sketch8.AttachmentOffset = App.Placement(App.Vector(0, 0, 45.6), App.Rotation())
sketch8.addGeometry(Part.Circle(App.Vector(-160, 15, 0), App.Vector(0, 0, 1), 2.5), False)
sketch8.addConstraint(Sketcher.Constraint("Diameter", 0, 5.0))
sketch8.addConstraint(Sketcher.Constraint("DistanceX", 0, 3, -1, 1, 160.0))
sketch8.addConstraint(Sketcher.Constraint("DistanceY", -1, 1, 0, 3, 15.0))
pocket5 = body.newObject("PartDesign::Pocket", "Pocket004")
pocket5.Profile = sketch8
pocket5.Type = "UpToFirst"

# Sketch on XZ plane
sketch9 = body.newObject("Sketcher::SketchObject", "Sketch008")
sketch9.AttachmentSupport = (doc.getObject("XZ_Plane"), [""])
sketch9.MapMode = "FlatFace"
sketch9.AttachmentOffset = App.Placement(App.Vector(0, 0, 69.046796), App.Rotation())
sketch9.addGeometry(Part.LineSegment(App.Vector(-90, 90, 0), App.Vector(-90, 0, 0)), False)
sketch9.addGeometry(Part.LineSegment(App.Vector(-90, 0, 0), App.Vector(0, 0, 0)), False)
sketch9.addGeometry(Part.LineSegment(App.Vector(0, 0, 0), App.Vector(0, 90, 0)), False)
sketch9.addGeometry(Part.LineSegment(App.Vector(0, 90, 0), App.Vector(-90, 90, 0)), False)
sketch9.addConstraint(Sketcher.Constraint("Coincident", 0, 2, 1, 1))
sketch9.addConstraint(Sketcher.Constraint("Coincident", 1, 2, 2, 1))
sketch9.addConstraint(Sketcher.Constraint("Coincident", 2, 2, 3, 1))
sketch9.addConstraint(Sketcher.Constraint("Coincident", 3, 2, 0, 1))
sketch9.addConstraint(Sketcher.Constraint("Vertical", 0))
sketch9.addConstraint(Sketcher.Constraint("Horizontal", 1))
sketch9.addConstraint(Sketcher.Constraint("Vertical", 2))
sketch9.addConstraint(Sketcher.Constraint("Horizontal", 3))
sketch9.addConstraint(Sketcher.Constraint("Coincident", 1, 2, -1, 1))
sketch9.addConstraint(Sketcher.Constraint("Equal", 3, 0))
sketch9.addConstraint(Sketcher.Constraint("DistanceX", 1, 1, 1, 2, 90.0))
pocket6 = body.newObject("PartDesign::Pocket", "Pocket005")
pocket6.Profile = sketch9
pocket6.Length = 67

# Sketch on XZ plane
sketch10 = body.newObject("Sketcher::SketchObject", "Sketch009")
sketch10.AttachmentSupport = (doc.getObject("XZ_Plane"), [""])
sketch10.MapMode = "FlatFace"
sketch10.AttachmentOffset = App.Placement(App.Vector(0, 0, 69.046796), App.Rotation())
sketch10.addGeometry(Part.LineSegment(App.Vector(-191.923302, 90, 0), App.Vector(-191.923302, 0, 0)), False)
sketch10.addGeometry(Part.LineSegment(App.Vector(-191.923302, 0, 0), App.Vector(-128.076698, 0, 0)), False)
sketch10.addGeometry(Part.LineSegment(App.Vector(-128.076698, 0, 0), App.Vector(-128.076698, 90, 0)), False)
sketch10.addGeometry(Part.LineSegment(App.Vector(-128.076698, 90, 0), App.Vector(-191.923302, 90, 0)), False)
sketch10.addConstraint(Sketcher.Constraint("Coincident", 0, 2, 1, 1))
sketch10.addConstraint(Sketcher.Constraint("Coincident", 1, 2, 2, 1))
sketch10.addConstraint(Sketcher.Constraint("Coincident", 2, 2, 3, 1))
sketch10.addConstraint(Sketcher.Constraint("Coincident", 3, 2, 0, 1))
sketch10.addConstraint(Sketcher.Constraint("Vertical", 0))
sketch10.addConstraint(Sketcher.Constraint("Horizontal", 1))
sketch10.addConstraint(Sketcher.Constraint("Vertical", 2))
sketch10.addConstraint(Sketcher.Constraint("Horizontal", 3))
sketch10.addConstraint(Sketcher.Constraint("PointOnObject", 0, 2, -1))
sketch10.addConstraint(Sketcher.Constraint("DistanceY", 0, 2, 0, 1, 90.0))
sketch10.addConstraint(Sketcher.Constraint("DistanceX", 1, 1, 1, 2, 63.846604))
sketch10.addConstraint(Sketcher.Constraint("DistanceX", 0, 2, -1, 1, 191.923302))
pad4 = body.newObject("PartDesign::Pad", "Pad003")
pad4.Profile = sketch10
pad4.Length = 67
pad4.Reversed = True

# Sketch on XY plane
sketch11 = body.newObject("Sketcher::SketchObject", "Sketch010")
sketch11.AttachmentSupport = (doc.getObject("XY_Plane"), [""])
sketch11.MapMode = "FlatFace"
sketch11.AttachmentOffset = App.Placement(App.Vector(0, 0, 87), App.Rotation())
sketch11.addGeometry(Part.Circle(App.Vector(-175, -41.946796, 0), App.Vector(0, 0, 1), 10), False)
sketch11.addConstraint(Sketcher.Constraint("Diameter", 0, 20.0))
sketch11.addConstraint(Sketcher.Constraint("DistanceX", 0, 3, -1, 1, 175.0))
sketch11.addConstraint(Sketcher.Constraint("DistanceY", 0, 3, -1, 1, 41.946796))
pad5 = body.newObject("PartDesign::Pad", "Pad004")
pad5.Profile = sketch11
pad5.Length = 31

# Sketch on XY plane
sketch12 = body.newObject("Sketcher::SketchObject", "Sketch011")
sketch12.AttachmentSupport = (doc.getObject("XY_Plane"), [""])
sketch12.MapMode = "FlatFace"
sketch12.AttachmentOffset = App.Placement(App.Vector(0, 0, 118), App.Rotation())
sketch12.addGeometry(Part.Circle(App.Vector(-175, -41.946796, 0), App.Vector(0, 0, 1), 12.5), False)
sketch12.addConstraint(Sketcher.Constraint("Diameter", 0, 25.0))
sketch12.addConstraint(Sketcher.Constraint("DistanceX", 0, 3, -1, 1, 175.0))
sketch12.addConstraint(Sketcher.Constraint("DistanceY", 0, 3, -1, 1, 41.946796))
pad6 = body.newObject("PartDesign::Pad", "Pad005")
pad6.Profile = sketch12
pad6.Length = 3
pad6.Reversed = True
doc.recompute()

datumplane = body.newObject("PartDesign::Plane", "DatumPlane")
datumplane.AttachmentSupport = (doc.getObject("XY_Plane"), [""])
datumplane.MapMode = "FlatFace"
datumplane.AttachmentOffset = App.Placement(App.Vector(0, 0, 44.5), App.Rotation())
mirrored = body.newObject("PartDesign::Mirrored", "Mirrored")
mirrored.Originals = [pad5, pad6]
mirrored.MirrorPlane = (datumplane, [""])
body.Tip = mirrored

# Sketch on XY plane
sketch13 = body.newObject("Sketcher::SketchObject", "Sketch012")
sketch13.AttachmentSupport = (doc.getObject("XY_Plane"), [""])
sketch13.MapMode = "FlatFace"
sketch13.AttachmentOffset = App.Placement(App.Vector(0, 0, 90), App.Rotation())
sketch13.addGeometry(Part.Circle(App.Vector(-175, -41.946796, 0), App.Vector(0, 0, 1), 12.5), False)
sketch13.addConstraint(Sketcher.Constraint("Diameter", 0, 25.0))
sketch13.addConstraint(Sketcher.Constraint("DistanceX", 0, 3, -1, 1, 175.0))
sketch13.addConstraint(Sketcher.Constraint("DistanceY", 0, 3, -1, 1, 41.946796))
pad7 = body.newObject("PartDesign::Pad", "Pad006")
pad7.Profile = sketch13
pad7.Length = 3
doc.recompute()

datumplane2 = body.newObject("PartDesign::Plane", "DatumPlane001")
datumplane2.AttachmentSupport = (doc.getObject("XY_Plane"), [""])
datumplane2.MapMode = "FlatFace"
datumplane2.AttachmentOffset = App.Placement(App.Vector(0, 0, 44.5), App.Rotation())
mirrored2 = body.newObject("PartDesign::Mirrored", "Mirrored001")
mirrored2.Originals = [pad7]
mirrored2.MirrorPlane = (datumplane2, [""])
body.Tip = mirrored2

# Sketch on XZ plane
sketch14 = body.newObject("Sketcher::SketchObject", "Sketch013")
sketch14.AttachmentSupport = (doc.getObject("XZ_Plane"), [""])
sketch14.MapMode = "FlatFace"
sketch14.AttachmentOffset = App.Placement(App.Vector(0, 0, 2.046796), App.Rotation())
sketch14.addGeometry(Part.LineSegment(App.Vector(-20, 28, 0), App.Vector(-20, 62, 0)), False)
sketch14.addGeometry(Part.LineSegment(App.Vector(-20, 62, 0), App.Vector(-54, 62, 0)), False)
sketch14.addGeometry(Part.LineSegment(App.Vector(-54, 62, 0), App.Vector(-54, 28, 0)), False)
sketch14.addGeometry(Part.LineSegment(App.Vector(-54, 28, 0), App.Vector(-20, 28, 0)), False)
sketch14.addConstraint(Sketcher.Constraint("Coincident", 0, 2, 1, 1))
sketch14.addConstraint(Sketcher.Constraint("Coincident", 1, 2, 2, 1))
sketch14.addConstraint(Sketcher.Constraint("Coincident", 2, 2, 3, 1))
sketch14.addConstraint(Sketcher.Constraint("Coincident", 3, 2, 0, 1))
sketch14.addConstraint(Sketcher.Constraint("Vertical", 0))
sketch14.addConstraint(Sketcher.Constraint("Horizontal", 1))
sketch14.addConstraint(Sketcher.Constraint("Vertical", 2))
sketch14.addConstraint(Sketcher.Constraint("Horizontal", 3))
sketch14.addConstraint(Sketcher.Constraint("Equal", 3, 0))
sketch14.addConstraint(Sketcher.Constraint("DistanceX", 1, 2, 1, 1, 34.0))
sketch14.addConstraint(Sketcher.Constraint("DistanceX", 0, 2, -1, 1, 20.0))
sketch14.addConstraint(Sketcher.Constraint("DistanceY", -1, 1, 0, 2, 62.0))
pocket7 = body.newObject("PartDesign::Pocket", "Pocket006")
pocket7.Profile = sketch14
pocket7.Length = 2

# Sketch on XZ plane
sketch15 = body.newObject("Sketcher::SketchObject", "Sketch014")
sketch15.AttachmentSupport = (doc.getObject("XZ_Plane"), [""])
sketch15.MapMode = "FlatFace"
sketch15.AttachmentOffset = App.Placement(App.Vector(0, 0, 0.046796), App.Rotation())
sketch15.addGeometry(Part.Circle(App.Vector(-37, 45, 0), App.Vector(0, 0, 1), 10), False)
sketch15.addConstraint(Sketcher.Constraint("Diameter", 0, 20.0))
sketch15.addConstraint(Sketcher.Constraint("DistanceX", 0, 3, -1, 1, 37.0))
sketch15.addConstraint(Sketcher.Constraint("DistanceY", -1, 1, 0, 3, 45.0))
pocket8 = body.newObject("PartDesign::Pocket", "Pocket007")
pocket8.Profile = sketch15
pocket8.Length = 5

# Sketch on XZ plane
sketch16 = body.newObject("Sketcher::SketchObject", "Sketch015")
sketch16.AttachmentSupport = (doc.getObject("XZ_Plane"), [""])
sketch16.MapMode = "FlatFace"
sketch16.AttachmentOffset = App.Placement(App.Vector(0, 0, -4.953204), App.Rotation())
sketch16.addGeometry(Part.Circle(App.Vector(-37, 45, 0), App.Vector(0, 0, 1), 12.5), False)
sketch16.addConstraint(Sketcher.Constraint("Diameter", 0, 25.0))
sketch16.addConstraint(Sketcher.Constraint("DistanceX", 0, 3, -1, 1, 37.0))
sketch16.addConstraint(Sketcher.Constraint("DistanceY", -1, 1, 0, 3, 45.0))
pocket9 = body.newObject("PartDesign::Pocket", "Pocket008")
pocket9.Profile = sketch16
pocket9.Length = 3

doc.recompute()
